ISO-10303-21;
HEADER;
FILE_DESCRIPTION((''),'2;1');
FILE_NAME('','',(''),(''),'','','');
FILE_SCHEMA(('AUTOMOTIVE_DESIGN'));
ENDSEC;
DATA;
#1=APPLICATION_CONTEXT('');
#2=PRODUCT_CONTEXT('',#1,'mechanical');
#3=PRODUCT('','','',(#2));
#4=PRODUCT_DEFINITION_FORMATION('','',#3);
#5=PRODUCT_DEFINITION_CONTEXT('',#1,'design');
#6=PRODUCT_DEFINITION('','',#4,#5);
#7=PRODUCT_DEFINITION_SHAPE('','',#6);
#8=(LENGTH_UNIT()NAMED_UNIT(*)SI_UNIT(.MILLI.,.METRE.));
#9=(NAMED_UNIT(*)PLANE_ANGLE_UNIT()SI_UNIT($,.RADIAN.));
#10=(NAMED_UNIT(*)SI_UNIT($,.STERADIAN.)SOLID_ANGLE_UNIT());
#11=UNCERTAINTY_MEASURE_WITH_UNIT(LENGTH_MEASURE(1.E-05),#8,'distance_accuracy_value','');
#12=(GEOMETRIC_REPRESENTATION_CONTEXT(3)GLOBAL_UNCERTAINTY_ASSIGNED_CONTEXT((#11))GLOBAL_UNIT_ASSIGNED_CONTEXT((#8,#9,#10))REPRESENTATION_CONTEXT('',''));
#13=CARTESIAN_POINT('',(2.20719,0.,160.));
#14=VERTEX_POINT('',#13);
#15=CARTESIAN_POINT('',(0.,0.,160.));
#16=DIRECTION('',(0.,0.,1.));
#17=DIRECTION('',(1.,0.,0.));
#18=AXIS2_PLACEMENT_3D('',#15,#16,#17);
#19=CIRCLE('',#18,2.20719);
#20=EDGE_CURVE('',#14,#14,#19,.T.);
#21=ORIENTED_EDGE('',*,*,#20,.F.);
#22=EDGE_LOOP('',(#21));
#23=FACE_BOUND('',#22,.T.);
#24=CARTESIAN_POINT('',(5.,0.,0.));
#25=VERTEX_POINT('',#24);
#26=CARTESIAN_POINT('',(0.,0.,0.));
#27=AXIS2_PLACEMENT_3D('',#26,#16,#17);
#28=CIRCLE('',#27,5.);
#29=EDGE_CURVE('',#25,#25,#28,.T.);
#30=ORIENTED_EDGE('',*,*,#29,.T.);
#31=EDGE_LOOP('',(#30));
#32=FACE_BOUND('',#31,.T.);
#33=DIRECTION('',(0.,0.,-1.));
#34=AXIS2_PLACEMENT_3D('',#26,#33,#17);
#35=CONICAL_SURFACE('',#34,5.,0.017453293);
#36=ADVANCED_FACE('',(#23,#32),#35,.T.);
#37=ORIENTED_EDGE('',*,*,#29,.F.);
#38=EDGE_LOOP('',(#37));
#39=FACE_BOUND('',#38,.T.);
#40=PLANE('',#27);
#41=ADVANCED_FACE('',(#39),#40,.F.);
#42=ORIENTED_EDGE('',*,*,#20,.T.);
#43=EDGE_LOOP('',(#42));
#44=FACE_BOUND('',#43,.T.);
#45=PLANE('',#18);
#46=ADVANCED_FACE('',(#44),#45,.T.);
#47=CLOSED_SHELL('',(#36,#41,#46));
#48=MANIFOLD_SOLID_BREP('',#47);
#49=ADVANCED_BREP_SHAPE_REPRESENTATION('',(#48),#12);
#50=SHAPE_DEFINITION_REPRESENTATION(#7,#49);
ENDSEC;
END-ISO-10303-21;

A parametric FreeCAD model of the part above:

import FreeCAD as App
import Part
import Sketcher
Q = App.Units.Quantity

doc = App.newDocument("Part")
body = doc.addObject("PartDesign::Body", "Body")

# Sketch on XY plane
sketch1 = body.newObject("Sketcher::SketchObject", "Sketch")
sketch1.AttachmentSupport = (doc.getObject("XY_Plane"), [""])
sketch1.MapMode = "FlatFace"
sketch1.addGeometry(Part.Circle(App.Vector(0, 0, 0), App.Vector(0, 0, 1), 5), False)
sketch1.addConstraint([
    Sketcher.Constraint("Coincident", 0, 3, -1, 1),
    Sketcher.Constraint("Diameter", 0, Q("10 mm")),
])
pad1 = body.newObject("PartDesign::Pad", "Pad")
pad1.Profile = sketch1
pad1.Length = 160
pad1.TaperAngle = -1

doc.recompute()
